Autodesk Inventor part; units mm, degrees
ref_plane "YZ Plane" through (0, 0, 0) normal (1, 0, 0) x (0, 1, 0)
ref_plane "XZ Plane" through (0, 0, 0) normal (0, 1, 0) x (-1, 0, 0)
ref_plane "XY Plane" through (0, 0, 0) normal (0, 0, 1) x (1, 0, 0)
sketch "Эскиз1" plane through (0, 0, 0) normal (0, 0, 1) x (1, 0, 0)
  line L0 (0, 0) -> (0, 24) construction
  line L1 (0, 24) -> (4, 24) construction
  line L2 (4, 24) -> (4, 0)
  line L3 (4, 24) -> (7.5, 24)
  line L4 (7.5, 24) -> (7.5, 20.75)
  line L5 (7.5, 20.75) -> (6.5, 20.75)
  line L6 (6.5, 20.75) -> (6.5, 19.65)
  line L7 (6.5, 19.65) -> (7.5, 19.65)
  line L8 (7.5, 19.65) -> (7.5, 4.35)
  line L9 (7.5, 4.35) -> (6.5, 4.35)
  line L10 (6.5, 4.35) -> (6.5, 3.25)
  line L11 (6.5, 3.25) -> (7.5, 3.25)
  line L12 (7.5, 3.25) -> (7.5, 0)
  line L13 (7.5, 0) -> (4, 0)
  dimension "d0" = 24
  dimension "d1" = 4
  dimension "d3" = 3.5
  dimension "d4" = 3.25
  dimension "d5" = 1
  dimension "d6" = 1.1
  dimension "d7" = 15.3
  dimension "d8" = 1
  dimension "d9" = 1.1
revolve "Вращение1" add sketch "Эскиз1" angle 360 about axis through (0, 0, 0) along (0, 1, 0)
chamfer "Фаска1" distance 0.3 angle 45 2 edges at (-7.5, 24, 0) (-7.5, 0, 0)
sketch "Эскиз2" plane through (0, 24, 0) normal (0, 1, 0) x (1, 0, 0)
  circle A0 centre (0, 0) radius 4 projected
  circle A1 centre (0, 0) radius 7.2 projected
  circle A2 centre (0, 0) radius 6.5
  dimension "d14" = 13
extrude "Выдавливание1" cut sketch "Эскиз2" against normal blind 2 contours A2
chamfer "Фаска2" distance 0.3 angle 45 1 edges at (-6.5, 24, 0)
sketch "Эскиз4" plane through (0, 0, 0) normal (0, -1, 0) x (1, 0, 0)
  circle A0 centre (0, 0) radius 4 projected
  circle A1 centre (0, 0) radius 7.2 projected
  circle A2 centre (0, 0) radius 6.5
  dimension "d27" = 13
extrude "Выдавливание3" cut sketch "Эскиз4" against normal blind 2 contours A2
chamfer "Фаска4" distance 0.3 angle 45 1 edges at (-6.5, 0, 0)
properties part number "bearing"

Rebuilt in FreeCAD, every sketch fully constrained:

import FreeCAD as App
import Part
import Sketcher


def edges_at(feature, points):
    """Names of the edges that pass closest to the given points."""
    edges = feature.Shape.Edges
    near = lambda p: min(range(len(edges)), key=lambda i: edges[i].distToShape(Part.Vertex(*p))[0])
    return sorted({f"Edge{near(p) + 1}" for p in points})

doc = App.newDocument("Part")
body = doc.addObject("PartDesign::Body", "Body")

# Sketch on XY plane
sketch1 = doc.addObject("Sketcher::SketchObject", "Sketch")
body.addObject(sketch1)
sketch1.AttachmentSupport = (doc.XY_Plane, [""])
sketch1.MapMode = "FlatFace"
sketch1.addGeometry([
    Part.LineSegment(App.Vector(7.5, 24, 0), App.Vector(4, 24, 0)),  # 0
    Part.LineSegment(App.Vector(4, 24, 0), App.Vector(4, 0, 0)),  # 1
    Part.LineSegment(App.Vector(4, 0, 0), App.Vector(7.5, 0, 0)),  # 2
    Part.LineSegment(App.Vector(7.5, 0, 0), App.Vector(7.5, 3.25, 0)),  # 3
    Part.LineSegment(App.Vector(7.5, 3.25, 0), App.Vector(6.5, 3.25, 0)),  # 4
    Part.LineSegment(App.Vector(6.5, 3.25, 0), App.Vector(6.5, 4.35, 0)),  # 5
    Part.LineSegment(App.Vector(6.5, 4.35, 0), App.Vector(7.5, 4.35, 0)),  # 6
    Part.LineSegment(App.Vector(7.5, 4.35, 0), App.Vector(7.5, 19.65, 0)),  # 7
    Part.LineSegment(App.Vector(7.5, 19.65, 0), App.Vector(6.5, 19.65, 0)),  # 8
    Part.LineSegment(App.Vector(6.5, 19.65, 0), App.Vector(6.5, 20.75, 0)),  # 9
    Part.LineSegment(App.Vector(6.5, 20.75, 0), App.Vector(7.5, 20.75, 0)),  # 10
    Part.LineSegment(App.Vector(7.5, 20.75, 0), App.Vector(7.5, 24, 0)),  # 11
], False)
sketch1.addConstraint([
    Sketcher.Constraint("Coincident", 0, 2, 1, 1),
    Sketcher.Constraint("Coincident", 1, 2, 2, 1),
    Sketcher.Constraint("Coincident", 2, 2, 3, 1),
    Sketcher.Constraint("Coincident", 3, 2, 4, 1),
    Sketcher.Constraint("Coincident", 4, 2, 5, 1),
    Sketcher.Constraint("Coincident", 5, 2, 6, 1),
    Sketcher.Constraint("Coincident", 6, 2, 7, 1),
    Sketcher.Constraint("Coincident", 7, 2, 8, 1),
    Sketcher.Constraint("Coincident", 8, 2, 9, 1),
    Sketcher.Constraint("Coincident", 9, 2, 10, 1),
    Sketcher.Constraint("Coincident", 10, 2, 11, 1),
    Sketcher.Constraint("Coincident", 11, 2, 0, 1),
    Sketcher.Constraint("Horizontal", 0),
    Sketcher.Constraint("Vertical", 1),
    Sketcher.Constraint("Horizontal", 2),
    Sketcher.Constraint("Vertical", 3),
    Sketcher.Constraint("Horizontal", 4),
    Sketcher.Constraint("Vertical", 5),
    Sketcher.Constraint("Horizontal", 6),
    Sketcher.Constraint("Vertical", 7),
    Sketcher.Constraint("Horizontal", 8),
    Sketcher.Constraint("Vertical", 9),
    Sketcher.Constraint("Horizontal", 10),
    Sketcher.Constraint("Vertical", 11),
    Sketcher.Constraint("PointOnObject", 1, 2, -1),
    Sketcher.Constraint("Vertical", 3, 2, 6, 2),
    Sketcher.Constraint("Vertical", 5, 2, 8, 2),
    Sketcher.Constraint("Vertical", 7, 2, 10, 2),
    Sketcher.Constraint("Equal", 5, 9),
    Sketcher.Constraint("Equal", 3, 11),
    Sketcher.Constraint("DistanceX", 4, 2, 4, 1, 1.0),
    Sketcher.Constraint("DistanceY", 1, 2, 1, 1, 24.0),
    Sketcher.Constraint("DistanceX", 0, 2, 0, 1, 3.5),
    Sketcher.Constraint("DistanceY", 5, 1, 5, 2, 1.1),
    Sketcher.Constraint("DistanceY", 7, 1, 7, 2, 15.3),
    Sketcher.Constraint("DistanceX", -1, 1, 0, 2, 4.0),
])
revolution = doc.addObject("PartDesign::Revolution", "Revolution")
body.addObject(revolution)
revolution.Profile = sketch1
revolution.ReferenceAxis = (sketch1, ["V_Axis"])
revolution.Angle = 360
doc.recompute()

chamfer = doc.addObject("PartDesign::Chamfer", "Chamfer")
body.addObject(chamfer)
chamfer.Base = (revolution, edges_at(revolution, [(-7.5, 24, 0), (-7.5, 0, 0)]))
chamfer.Size = 0.3

# Sketch on XZ plane
sketch2 = doc.addObject("Sketcher::SketchObject", "Sketch001")
body.addObject(sketch2)
sketch2.AttachmentSupport = (doc.XZ_Plane, [""])
sketch2.MapMode = "FlatFace"
sketch2.AttachmentOffset = App.Placement(App.Vector(0, 0, -24), App.Rotation())
sketch2.addGeometry([
    Part.Circle(App.Vector(0, 0, 0), App.Vector(0, 0, 1), 6.5),
    Part.Circle(App.Vector(0, 0, 0), App.Vector(0, 0, 1), 4),
], False)
sketch2.addConstraint([
    Sketcher.Constraint("Coincident", 0, 3, -1, 1),
    Sketcher.Constraint("Coincident", 1, 3, -1, 1),
    Sketcher.Constraint("Diameter", 0, 13.0),
    Sketcher.Constraint("Diameter", 1, 8.0),
])
pocket1 = doc.addObject("PartDesign::Pocket", "Pocket")
body.addObject(pocket1)
pocket1.Profile = sketch2
pocket1.Length = 2
pocket1.Reversed = True
doc.recompute()

chamfer2 = doc.addObject("PartDesign::Chamfer", "Chamfer001")
body.addObject(chamfer2)
chamfer2.Base = (pocket1, edges_at(pocket1, [(-6.5, 24, 0)]))
chamfer2.Size = 0.3

# Sketch on XZ plane
sketch3 = doc.addObject("Sketcher::SketchObject", "Sketch002")
body.addObject(sketch3)
sketch3.AttachmentSupport = (doc.XZ_Plane, [""])
sketch3.MapMode = "FlatFace"
sketch3.addGeometry([
    Part.Circle(App.Vector(0, 0, 0), App.Vector(0, 0, 1), 6.5),
    Part.Circle(App.Vector(0, 0, 0), App.Vector(0, 0, 1), 4),
], False)
sketch3.addConstraint([
    Sketcher.Constraint("Coincident", 0, 3, -1, 1),
    Sketcher.Constraint("Coincident", 1, 3, -1, 1),
    Sketcher.Constraint("Diameter", 0, 13.0),
    Sketcher.Constraint("Diameter", 1, 8.0),
])
pocket2 = doc.addObject("PartDesign::Pocket", "Pocket001")
body.addObject(pocket2)
pocket2.Profile = sketch3
pocket2.Length = 2
doc.recompute()

chamfer3 = doc.addObject("PartDesign::Chamfer", "Chamfer002")
body.addObject(chamfer3)
chamfer3.Base = (pocket2, edges_at(pocket2, [(-6.5, 0, 0)]))
chamfer3.Size = 0.3

doc.recompute()
